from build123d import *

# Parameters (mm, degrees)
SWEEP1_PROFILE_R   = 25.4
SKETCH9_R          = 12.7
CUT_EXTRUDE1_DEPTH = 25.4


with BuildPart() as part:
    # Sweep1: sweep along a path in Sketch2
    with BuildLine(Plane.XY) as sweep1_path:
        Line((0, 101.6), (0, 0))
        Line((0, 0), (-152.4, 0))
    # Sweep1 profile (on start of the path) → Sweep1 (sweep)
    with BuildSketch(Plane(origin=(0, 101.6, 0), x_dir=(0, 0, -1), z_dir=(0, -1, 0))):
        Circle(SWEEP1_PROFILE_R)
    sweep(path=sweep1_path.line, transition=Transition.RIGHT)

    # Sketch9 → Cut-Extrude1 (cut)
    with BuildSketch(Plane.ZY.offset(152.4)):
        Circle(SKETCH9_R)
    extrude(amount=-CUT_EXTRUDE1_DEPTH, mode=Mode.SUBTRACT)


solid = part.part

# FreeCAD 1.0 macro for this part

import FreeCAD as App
import Part
import Sketcher
Q = App.Units.Quantity

doc = App.newDocument("Part")
body = doc.addObject("PartDesign::Body", "Body")

# Sketch on XZ plane
sketch1 = body.newObject("Sketcher::SketchObject", "Sketch")
sketch1.AttachmentSupport = (doc.getObject("XZ_Plane"), [""])
sketch1.MapMode = "FlatFace"
sketch1.AttachmentOffset = App.Placement(App.Vector(0, 0, -4 * 25.4), App.Rotation())
sketch1.addGeometry(Part.Circle(App.Vector(0, 0, 0), App.Vector(0, 0, 1), 25), False)
sketch1.addConstraint(Sketcher.Constraint("Coincident", 0, 3, -1, 1))
sketch1.addConstraint(Sketcher.Constraint("Diameter", 0, Q("2 in")))

# Sketch on XY plane
sketch2 = body.newObject("Sketcher::SketchObject", "Sketch001")
sketch2.AttachmentSupport = (doc.getObject("XY_Plane"), [""])
sketch2.MapMode = "FlatFace"
sketch2.addGeometry(Part.LineSegment(App.Vector(0, 102, 0), App.Vector(0, 0, 0)), False)
sketch2.addGeometry(Part.LineSegment(App.Vector(0, 0, 0), App.Vector(-152, 0, 0)), False)
sketch2.addConstraint(Sketcher.Constraint("Coincident", 0, 2, 1, 1))
sketch2.addConstraint(Sketcher.Constraint("Vertical", 0))
sketch2.addConstraint(Sketcher.Constraint("Horizontal", 1))
sketch2.addConstraint(Sketcher.Constraint("Coincident", 0, 2, -1, 1))
sketch2.addConstraint(Sketcher.Constraint("DistanceX", 1, 2, 1, 1, Q("6 in")))
sketch2.addConstraint(Sketcher.Constraint("DistanceY", 0, 2, 0, 1, Q("4 in")))
doc.recompute()

additivepipe = body.newObject("PartDesign::AdditivePipe", "AdditivePipe")
additivepipe.Profile = sketch1
additivepipe.Spine = (sketch2, ["Edge1", "Edge2"])
additivepipe.Transition = "Right corner"

# Sketch on YZ plane
sketch3 = body.newObject("Sketcher::SketchObject", "Sketch002")
sketch3.AttachmentSupport = (doc.getObject("YZ_Plane"), [""])
sketch3.MapMode = "FlatFace"
sketch3.AttachmentOffset = App.Placement(App.Vector(0, 0, -6 * 25.4), App.Rotation())
sketch3.addGeometry(Part.Circle(App.Vector(0, 0, 0), App.Vector(0, 0, 1), 13), False)
sketch3.addConstraint(Sketcher.Constraint("Coincident", 0, 3, -1, 1))
sketch3.addConstraint(Sketcher.Constraint("Diameter", 0, Q("1 in")))
pocket1 = body.newObject("PartDesign::Pocket", "Pocket")
pocket1.Profile = sketch3
pocket1.Length = Q("1 in")
pocket1.Reversed = True

doc.recompute()
